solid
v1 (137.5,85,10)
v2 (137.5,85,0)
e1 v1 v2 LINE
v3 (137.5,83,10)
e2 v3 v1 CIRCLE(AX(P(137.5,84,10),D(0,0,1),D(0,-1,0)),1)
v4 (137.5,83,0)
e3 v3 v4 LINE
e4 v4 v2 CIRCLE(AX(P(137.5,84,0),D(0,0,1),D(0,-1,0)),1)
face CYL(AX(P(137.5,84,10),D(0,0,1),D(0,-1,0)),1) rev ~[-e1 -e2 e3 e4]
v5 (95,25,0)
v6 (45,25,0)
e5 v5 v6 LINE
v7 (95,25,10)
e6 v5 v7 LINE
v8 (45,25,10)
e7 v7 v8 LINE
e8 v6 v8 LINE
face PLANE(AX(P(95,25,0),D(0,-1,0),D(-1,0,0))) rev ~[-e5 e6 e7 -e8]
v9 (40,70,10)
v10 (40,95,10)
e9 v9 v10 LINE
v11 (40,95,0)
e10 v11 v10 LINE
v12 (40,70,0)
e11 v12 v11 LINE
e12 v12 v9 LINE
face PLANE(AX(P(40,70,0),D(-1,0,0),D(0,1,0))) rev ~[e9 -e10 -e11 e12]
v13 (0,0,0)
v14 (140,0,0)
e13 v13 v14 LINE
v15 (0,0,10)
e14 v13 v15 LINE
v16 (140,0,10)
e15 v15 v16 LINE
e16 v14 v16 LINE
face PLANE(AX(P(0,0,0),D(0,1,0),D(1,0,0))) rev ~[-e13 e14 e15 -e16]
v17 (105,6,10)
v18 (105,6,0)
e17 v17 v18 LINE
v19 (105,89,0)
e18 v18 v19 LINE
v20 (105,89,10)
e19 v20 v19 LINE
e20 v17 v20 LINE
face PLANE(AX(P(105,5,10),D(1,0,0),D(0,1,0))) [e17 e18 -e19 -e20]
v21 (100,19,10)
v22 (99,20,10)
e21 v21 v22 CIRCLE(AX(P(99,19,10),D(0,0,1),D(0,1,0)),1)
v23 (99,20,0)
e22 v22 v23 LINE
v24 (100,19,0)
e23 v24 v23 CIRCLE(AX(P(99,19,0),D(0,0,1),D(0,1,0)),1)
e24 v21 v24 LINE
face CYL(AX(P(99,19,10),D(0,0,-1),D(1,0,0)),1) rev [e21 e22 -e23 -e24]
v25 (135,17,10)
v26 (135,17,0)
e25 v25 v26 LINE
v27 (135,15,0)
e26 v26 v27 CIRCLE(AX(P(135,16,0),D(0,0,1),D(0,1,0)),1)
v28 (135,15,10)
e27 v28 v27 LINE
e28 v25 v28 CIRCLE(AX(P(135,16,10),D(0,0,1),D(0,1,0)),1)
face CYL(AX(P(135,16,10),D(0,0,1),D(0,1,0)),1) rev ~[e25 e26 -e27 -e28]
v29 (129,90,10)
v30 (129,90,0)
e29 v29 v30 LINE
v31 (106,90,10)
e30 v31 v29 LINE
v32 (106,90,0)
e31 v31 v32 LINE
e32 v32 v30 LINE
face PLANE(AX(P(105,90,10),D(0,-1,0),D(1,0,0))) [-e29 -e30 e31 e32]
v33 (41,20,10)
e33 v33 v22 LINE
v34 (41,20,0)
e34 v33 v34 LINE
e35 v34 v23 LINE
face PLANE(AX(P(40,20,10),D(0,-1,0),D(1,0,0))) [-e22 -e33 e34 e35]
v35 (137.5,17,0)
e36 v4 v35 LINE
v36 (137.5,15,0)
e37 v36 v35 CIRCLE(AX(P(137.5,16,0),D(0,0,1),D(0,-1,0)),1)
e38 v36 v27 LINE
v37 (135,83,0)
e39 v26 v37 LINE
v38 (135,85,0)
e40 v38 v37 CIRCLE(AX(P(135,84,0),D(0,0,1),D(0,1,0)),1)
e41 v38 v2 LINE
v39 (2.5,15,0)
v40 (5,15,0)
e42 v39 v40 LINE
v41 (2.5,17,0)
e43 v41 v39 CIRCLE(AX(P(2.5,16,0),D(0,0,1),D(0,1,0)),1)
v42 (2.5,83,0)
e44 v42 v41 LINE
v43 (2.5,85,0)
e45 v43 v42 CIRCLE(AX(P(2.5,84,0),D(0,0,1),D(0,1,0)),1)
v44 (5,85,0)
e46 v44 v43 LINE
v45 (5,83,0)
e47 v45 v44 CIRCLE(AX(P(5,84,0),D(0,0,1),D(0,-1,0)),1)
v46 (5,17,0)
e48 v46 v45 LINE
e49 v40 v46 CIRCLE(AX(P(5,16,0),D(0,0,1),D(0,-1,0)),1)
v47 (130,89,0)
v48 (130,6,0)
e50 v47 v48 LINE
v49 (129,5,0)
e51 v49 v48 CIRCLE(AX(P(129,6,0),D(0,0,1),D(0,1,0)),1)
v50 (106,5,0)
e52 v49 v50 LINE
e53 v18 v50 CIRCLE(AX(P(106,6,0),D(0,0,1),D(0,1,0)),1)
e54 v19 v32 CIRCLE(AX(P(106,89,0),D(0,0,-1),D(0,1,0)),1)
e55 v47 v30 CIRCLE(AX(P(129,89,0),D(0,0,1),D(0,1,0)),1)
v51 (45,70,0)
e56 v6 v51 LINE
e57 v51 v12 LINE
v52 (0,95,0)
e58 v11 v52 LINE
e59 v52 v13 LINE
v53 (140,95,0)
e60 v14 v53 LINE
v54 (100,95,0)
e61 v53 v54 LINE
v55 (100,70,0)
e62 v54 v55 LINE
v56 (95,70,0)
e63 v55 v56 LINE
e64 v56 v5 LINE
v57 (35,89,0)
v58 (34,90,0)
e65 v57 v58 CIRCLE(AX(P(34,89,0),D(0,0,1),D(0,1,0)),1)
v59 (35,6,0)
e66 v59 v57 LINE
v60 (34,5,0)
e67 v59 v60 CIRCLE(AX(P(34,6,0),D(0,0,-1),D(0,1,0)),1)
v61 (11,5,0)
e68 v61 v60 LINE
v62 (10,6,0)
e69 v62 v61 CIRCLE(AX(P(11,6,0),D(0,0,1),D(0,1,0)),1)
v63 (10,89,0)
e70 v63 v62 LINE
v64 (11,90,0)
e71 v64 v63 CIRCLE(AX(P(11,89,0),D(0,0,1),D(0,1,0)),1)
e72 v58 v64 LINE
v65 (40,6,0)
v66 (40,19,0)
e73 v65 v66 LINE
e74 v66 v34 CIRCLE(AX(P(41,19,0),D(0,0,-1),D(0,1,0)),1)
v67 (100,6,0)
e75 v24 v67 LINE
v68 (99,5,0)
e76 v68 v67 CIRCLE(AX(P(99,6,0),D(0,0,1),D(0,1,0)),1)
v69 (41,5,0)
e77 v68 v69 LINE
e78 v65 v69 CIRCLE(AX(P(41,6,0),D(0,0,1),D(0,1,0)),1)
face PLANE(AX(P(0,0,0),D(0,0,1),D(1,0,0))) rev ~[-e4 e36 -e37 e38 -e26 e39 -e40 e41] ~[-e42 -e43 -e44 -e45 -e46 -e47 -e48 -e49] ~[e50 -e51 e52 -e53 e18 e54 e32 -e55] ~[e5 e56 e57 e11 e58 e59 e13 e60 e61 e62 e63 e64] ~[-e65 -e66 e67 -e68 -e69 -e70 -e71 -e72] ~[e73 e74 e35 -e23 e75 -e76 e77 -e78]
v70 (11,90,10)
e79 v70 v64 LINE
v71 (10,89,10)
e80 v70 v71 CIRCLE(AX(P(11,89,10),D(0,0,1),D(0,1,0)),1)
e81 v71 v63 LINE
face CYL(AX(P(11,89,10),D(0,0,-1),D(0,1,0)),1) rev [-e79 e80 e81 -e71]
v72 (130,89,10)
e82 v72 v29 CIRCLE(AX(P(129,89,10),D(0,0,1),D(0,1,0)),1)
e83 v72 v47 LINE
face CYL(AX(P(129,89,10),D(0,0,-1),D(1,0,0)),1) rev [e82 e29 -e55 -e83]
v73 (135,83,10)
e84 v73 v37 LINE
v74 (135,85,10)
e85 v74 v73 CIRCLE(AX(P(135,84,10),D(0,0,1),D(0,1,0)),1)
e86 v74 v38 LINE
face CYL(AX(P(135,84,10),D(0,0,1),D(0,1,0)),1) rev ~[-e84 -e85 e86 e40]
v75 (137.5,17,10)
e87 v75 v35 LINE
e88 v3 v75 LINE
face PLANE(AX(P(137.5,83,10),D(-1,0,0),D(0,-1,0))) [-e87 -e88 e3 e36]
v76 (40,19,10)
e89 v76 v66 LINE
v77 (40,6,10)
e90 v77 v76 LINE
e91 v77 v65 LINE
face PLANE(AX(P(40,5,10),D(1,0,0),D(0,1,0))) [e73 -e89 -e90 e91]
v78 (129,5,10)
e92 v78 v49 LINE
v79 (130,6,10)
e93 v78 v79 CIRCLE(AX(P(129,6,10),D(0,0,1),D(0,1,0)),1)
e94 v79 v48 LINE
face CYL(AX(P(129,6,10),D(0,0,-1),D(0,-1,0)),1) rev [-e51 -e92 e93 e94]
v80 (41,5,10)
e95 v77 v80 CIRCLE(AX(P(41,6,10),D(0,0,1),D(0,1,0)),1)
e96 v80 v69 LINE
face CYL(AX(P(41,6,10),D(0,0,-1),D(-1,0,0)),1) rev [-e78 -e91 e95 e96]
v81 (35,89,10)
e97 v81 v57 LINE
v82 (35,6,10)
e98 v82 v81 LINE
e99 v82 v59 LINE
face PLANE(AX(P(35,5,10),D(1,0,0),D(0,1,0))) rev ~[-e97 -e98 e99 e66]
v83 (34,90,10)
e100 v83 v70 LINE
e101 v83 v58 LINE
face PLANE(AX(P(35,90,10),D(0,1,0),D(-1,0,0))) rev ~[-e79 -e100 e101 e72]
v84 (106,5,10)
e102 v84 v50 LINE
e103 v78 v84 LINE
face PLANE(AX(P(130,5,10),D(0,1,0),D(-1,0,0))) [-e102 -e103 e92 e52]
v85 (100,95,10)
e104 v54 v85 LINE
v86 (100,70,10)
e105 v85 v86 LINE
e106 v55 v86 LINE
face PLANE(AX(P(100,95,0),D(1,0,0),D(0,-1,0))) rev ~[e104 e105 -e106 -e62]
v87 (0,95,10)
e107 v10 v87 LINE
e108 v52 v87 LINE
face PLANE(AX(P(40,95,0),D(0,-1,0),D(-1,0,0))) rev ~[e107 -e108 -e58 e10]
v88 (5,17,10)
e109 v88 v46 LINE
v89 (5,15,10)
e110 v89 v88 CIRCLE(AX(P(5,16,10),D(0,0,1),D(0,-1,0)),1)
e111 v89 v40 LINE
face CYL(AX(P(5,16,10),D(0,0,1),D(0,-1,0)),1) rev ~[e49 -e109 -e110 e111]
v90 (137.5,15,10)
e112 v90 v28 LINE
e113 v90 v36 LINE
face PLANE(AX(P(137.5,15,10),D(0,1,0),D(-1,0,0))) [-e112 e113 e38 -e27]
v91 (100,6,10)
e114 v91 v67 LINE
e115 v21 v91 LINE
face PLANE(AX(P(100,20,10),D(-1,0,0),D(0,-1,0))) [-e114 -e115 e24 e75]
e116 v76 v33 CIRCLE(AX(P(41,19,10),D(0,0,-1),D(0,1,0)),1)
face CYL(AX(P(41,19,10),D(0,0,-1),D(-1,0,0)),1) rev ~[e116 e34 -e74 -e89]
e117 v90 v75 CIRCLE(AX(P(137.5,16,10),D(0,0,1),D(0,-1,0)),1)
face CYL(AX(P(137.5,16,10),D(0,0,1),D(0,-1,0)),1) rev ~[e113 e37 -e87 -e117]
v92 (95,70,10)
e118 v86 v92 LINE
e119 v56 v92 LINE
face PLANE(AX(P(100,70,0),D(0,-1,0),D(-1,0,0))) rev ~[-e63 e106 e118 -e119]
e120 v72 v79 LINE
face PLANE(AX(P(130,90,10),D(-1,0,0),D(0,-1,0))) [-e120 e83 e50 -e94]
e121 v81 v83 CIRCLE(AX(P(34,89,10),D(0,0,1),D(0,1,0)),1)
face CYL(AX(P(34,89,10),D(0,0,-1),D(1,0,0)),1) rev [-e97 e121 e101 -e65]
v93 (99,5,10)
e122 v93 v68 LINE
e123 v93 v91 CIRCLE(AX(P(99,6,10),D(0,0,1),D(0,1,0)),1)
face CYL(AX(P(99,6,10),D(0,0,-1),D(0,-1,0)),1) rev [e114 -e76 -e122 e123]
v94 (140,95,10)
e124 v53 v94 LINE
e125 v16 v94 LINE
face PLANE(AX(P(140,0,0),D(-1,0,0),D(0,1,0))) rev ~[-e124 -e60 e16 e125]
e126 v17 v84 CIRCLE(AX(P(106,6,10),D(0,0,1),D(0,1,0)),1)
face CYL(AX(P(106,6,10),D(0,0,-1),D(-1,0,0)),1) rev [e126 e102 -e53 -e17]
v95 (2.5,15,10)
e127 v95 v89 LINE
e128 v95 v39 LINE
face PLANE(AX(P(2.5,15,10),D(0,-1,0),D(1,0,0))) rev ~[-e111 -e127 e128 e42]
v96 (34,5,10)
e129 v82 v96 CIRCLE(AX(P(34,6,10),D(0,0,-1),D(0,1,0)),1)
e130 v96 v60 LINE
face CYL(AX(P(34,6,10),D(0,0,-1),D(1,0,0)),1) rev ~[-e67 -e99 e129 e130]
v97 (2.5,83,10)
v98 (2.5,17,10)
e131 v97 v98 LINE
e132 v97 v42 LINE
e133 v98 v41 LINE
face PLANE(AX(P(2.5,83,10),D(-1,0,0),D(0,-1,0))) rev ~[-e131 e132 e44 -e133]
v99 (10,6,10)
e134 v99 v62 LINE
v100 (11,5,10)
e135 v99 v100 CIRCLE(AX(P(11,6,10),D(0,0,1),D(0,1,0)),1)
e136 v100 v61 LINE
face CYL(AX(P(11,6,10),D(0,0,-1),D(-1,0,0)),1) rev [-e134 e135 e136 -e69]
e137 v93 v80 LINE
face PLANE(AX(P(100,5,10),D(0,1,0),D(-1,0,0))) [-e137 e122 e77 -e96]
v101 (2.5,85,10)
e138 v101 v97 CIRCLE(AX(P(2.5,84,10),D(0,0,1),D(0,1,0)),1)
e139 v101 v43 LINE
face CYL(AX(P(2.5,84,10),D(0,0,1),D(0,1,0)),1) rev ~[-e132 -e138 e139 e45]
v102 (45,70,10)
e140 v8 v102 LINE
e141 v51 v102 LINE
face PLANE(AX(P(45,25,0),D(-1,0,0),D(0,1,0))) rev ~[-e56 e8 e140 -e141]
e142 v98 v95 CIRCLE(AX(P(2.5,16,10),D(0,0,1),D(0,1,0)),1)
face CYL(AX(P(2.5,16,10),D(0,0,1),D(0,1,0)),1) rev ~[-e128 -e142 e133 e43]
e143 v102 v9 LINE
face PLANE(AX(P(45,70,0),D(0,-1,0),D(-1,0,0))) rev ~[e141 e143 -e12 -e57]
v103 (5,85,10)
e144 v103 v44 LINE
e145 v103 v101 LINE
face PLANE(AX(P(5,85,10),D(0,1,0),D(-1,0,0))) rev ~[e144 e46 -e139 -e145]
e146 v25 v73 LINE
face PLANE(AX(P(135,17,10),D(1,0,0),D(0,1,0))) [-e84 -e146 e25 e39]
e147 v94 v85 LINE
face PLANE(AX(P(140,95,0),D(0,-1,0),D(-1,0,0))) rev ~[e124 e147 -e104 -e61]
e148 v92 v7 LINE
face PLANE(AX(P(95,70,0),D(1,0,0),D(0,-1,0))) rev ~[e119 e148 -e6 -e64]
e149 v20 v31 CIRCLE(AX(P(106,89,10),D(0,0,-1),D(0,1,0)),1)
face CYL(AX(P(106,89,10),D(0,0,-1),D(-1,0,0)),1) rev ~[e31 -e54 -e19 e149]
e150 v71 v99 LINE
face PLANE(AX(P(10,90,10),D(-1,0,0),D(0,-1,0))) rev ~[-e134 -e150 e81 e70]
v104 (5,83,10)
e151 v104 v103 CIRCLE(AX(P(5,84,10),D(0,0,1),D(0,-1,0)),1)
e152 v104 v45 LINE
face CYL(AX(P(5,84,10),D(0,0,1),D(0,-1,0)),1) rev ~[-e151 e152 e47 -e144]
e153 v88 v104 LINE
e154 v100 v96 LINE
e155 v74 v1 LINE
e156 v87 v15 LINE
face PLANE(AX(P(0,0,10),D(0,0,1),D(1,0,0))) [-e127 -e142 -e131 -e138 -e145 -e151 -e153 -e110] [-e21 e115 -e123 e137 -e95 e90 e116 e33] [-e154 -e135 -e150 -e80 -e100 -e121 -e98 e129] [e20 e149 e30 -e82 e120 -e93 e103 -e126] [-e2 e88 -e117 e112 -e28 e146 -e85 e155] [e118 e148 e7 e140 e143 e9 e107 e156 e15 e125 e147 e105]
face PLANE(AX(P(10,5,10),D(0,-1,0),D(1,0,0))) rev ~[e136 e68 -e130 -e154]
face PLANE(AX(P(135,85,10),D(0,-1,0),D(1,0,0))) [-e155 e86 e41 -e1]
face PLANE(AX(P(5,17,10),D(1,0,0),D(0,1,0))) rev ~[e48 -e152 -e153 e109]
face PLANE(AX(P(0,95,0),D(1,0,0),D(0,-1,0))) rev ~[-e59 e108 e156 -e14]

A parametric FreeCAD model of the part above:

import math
import FreeCAD as App
import Part
import Sketcher
Q = App.Units.Quantity


def edges_at(feature, points):
    """Names of the edges that pass closest to the given points."""
    edges = feature.Shape.Edges
    near = lambda p: min(range(len(edges)), key=lambda i: edges[i].distToShape(Part.Vertex(*p))[0])
    return sorted({f"Edge{near(p) + 1}" for p in points})

doc = App.newDocument("Part")
params = doc.addObject("Spreadsheet::Sheet", "Params")
for row, (alias, value) in enumerate([
    ("sketch1_width", "140 mm"),
    ("sketch1_width2", "50 mm"),
    ("sketch1_height", "95 mm"),
    ("sketch1_height2", "25 mm"),
    ("pad1_length", "10 mm"),
    ("sketch2_radius", "1 mm"),
    ("sketch2_width", "2.5 mm"),
    ("sketch2_height", "66 mm"),
    ("sketch3_width", "60 mm"),
    ("sketch3_width2", "25 mm"),
    ("sketch3_height", "15 mm"),
    ("sketch3_height2", "85 mm"),
    ("fillet_radius", "1 mm"),
], start=1):
    params.set(f"A{row}", alias)
    params.set(f"B{row}", "=" + value)
    params.setAlias(f"B{row}", alias)

body = doc.addObject("PartDesign::Body", "Body")

sketch1 = body.newObject("Sketcher::SketchObject", "Sketch")
sketch1.AttachmentSupport = (doc.getObject("XY_Plane"), [""])
sketch1.MapMode = "FlatFace"
sketch1.addGeometry([
    Part.LineSegment(App.Vector(0, 95, 0), App.Vector(0, 0, 0)),
    Part.LineSegment(App.Vector(0, 0, 0), App.Vector(140, 0, 0)),
    Part.LineSegment(App.Vector(140, 0, 0), App.Vector(140, 95, 0)),
    Part.LineSegment(App.Vector(140, 95, 0), App.Vector(100, 95, 0)),
    Part.LineSegment(App.Vector(100, 95, 0), App.Vector(100, 70, 0)),
    Part.LineSegment(App.Vector(100, 70, 0), App.Vector(95, 70, 0)),
    Part.LineSegment(App.Vector(95, 70, 0), App.Vector(95, 25, 0)),
    Part.LineSegment(App.Vector(95, 25, 0), App.Vector(45, 25, 0)),
    Part.LineSegment(App.Vector(45, 25, 0), App.Vector(45, 70, 0)),
    Part.LineSegment(App.Vector(45, 70, 0), App.Vector(40, 70, 0)),
    Part.LineSegment(App.Vector(40, 70, 0), App.Vector(40, 95, 0)),
    Part.LineSegment(App.Vector(40, 95, 0), App.Vector(0, 95, 0)),
], False)
sketch1.addConstraint([
    Sketcher.Constraint("Coincident", 0, 2, 1, 1),
    Sketcher.Constraint("Coincident", 1, 2, 2, 1),
    Sketcher.Constraint("Coincident", 2, 2, 3, 1),
    Sketcher.Constraint("Coincident", 3, 2, 4, 1),
    Sketcher.Constraint("Coincident", 4, 2, 5, 1),
    Sketcher.Constraint("Coincident", 5, 2, 6, 1),
    Sketcher.Constraint("Coincident", 6, 2, 7, 1),
    Sketcher.Constraint("Coincident", 7, 2, 8, 1),
    Sketcher.Constraint("Coincident", 8, 2, 9, 1),
    Sketcher.Constraint("Coincident", 9, 2, 10, 1),
    Sketcher.Constraint("Coincident", 10, 2, 11, 1),
    Sketcher.Constraint("Coincident", 11, 2, 0, 1),
    Sketcher.Constraint("Vertical", 0),
    Sketcher.Constraint("Horizontal", 1),
    Sketcher.Constraint("Vertical", 2),
    Sketcher.Constraint("Horizontal", 3),
    Sketcher.Constraint("Vertical", 4),
    Sketcher.Constraint("Horizontal", 5),
    Sketcher.Constraint("Vertical", 6),
    Sketcher.Constraint("Horizontal", 7),
    Sketcher.Constraint("Vertical", 8),
    Sketcher.Constraint("Horizontal", 9),
    Sketcher.Constraint("Vertical", 10),
    Sketcher.Constraint("Horizontal", 11),
    Sketcher.Constraint("Coincident", 0, 2, -1, 1),
    Sketcher.Constraint("Horizontal", 5, 2, 8, 2),
    Sketcher.Constraint("Horizontal", 3, 2, 10, 2),
    Sketcher.Constraint("Equal", 5, 9),
    Sketcher.Constraint("Equal", 3, 11),
    Sketcher.Constraint("DistanceX", 1, 1, 1, 2, Q("140 mm")),
    Sketcher.Constraint("DistanceX", 7, 2, 7, 1, Q("50 mm")),
    Sketcher.Constraint("DistanceY", 0, 2, 0, 1, Q("95 mm")),
    Sketcher.Constraint("DistanceY", 4, 2, 4, 1, Q("25 mm")),
    Sketcher.Constraint("DistanceY", -1, 1, 6, 2, Q("25 mm")),
    Sketcher.Constraint("DistanceX", 9, 2, 4, 2, Q("60 mm")),
])
sketch1.setExpression("Constraints[29]", "Params.sketch1_width")
sketch1.setExpression("Constraints[30]", "Params.sketch1_width2")
sketch1.setExpression("Constraints[31]", "Params.sketch1_height")
sketch1.setExpression("Constraints[32]", "Params.sketch1_height2")
pad1 = body.newObject("PartDesign::Pad", "Pad")
pad1.Profile = sketch1
pad1.setExpression("Length", "Params.pad1_length")

sketch2 = body.newObject("Sketcher::SketchObject", "Sketch001")
sketch2.AttachmentSupport = (doc.getObject("XY_Plane"), [""])
sketch2.MapMode = "FlatFace"
sketch2.AttachmentOffset = App.Placement(App.Vector(0, 0, 10), App.Rotation())
sketch2.addGeometry([
    Part.LineSegment(App.Vector(137.5, 85, 0), App.Vector(135, 85, 0)),
    Part.ArcOfCircle(Part.Circle(App.Vector(135, 84, 0), App.Vector(0, 0, 1), 1), math.radians(90), math.radians(270)),
    Part.LineSegment(App.Vector(135, 83, 0), App.Vector(135, 17, 0)),
    Part.ArcOfCircle(Part.Circle(App.Vector(135, 16, 0), App.Vector(0, 0, 1), 1), math.radians(90), math.radians(270)),
    Part.LineSegment(App.Vector(135, 15, 0), App.Vector(137.5, 15, 0)),
    Part.ArcOfCircle(Part.Circle(App.Vector(137.5, 16, 0), App.Vector(0, 0, 1), 1), math.radians(-90), math.radians(90)),
    Part.LineSegment(App.Vector(137.5, 17, 0), App.Vector(137.5, 83, 0)),
    Part.ArcOfCircle(Part.Circle(App.Vector(137.5, 84, 0), App.Vector(0, 0, 1), 1), math.radians(-90), math.radians(90)),
    Part.ArcOfCircle(Part.Circle(App.Vector(5, 84, 0), App.Vector(0, 0, 1), 1), math.radians(-90), math.radians(90)),
    Part.LineSegment(App.Vector(5, 85, 0), App.Vector(2.5, 85, 0)),
    Part.ArcOfCircle(Part.Circle(App.Vector(2.5, 84, 0), App.Vector(0, 0, 1), 1), math.radians(90), math.radians(270)),
    Part.LineSegment(App.Vector(2.5, 83, 0), App.Vector(2.5, 17, 0)),
    Part.ArcOfCircle(Part.Circle(App.Vector(2.5, 16, 0), App.Vector(0, 0, 1), 1), math.radians(90), math.radians(270)),
    Part.LineSegment(App.Vector(2.5, 15, 0), App.Vector(5, 15, 0)),
    Part.ArcOfCircle(Part.Circle(App.Vector(5, 16, 0), App.Vector(0, 0, 1), 1), math.radians(-90), math.radians(90)),
    Part.LineSegment(App.Vector(5, 17, 0), App.Vector(5, 83, 0)),
], False)
sketch2.addConstraint([
    Sketcher.Constraint("Tangent", 0, 2, 1, 1),
    Sketcher.Constraint("Coincident", 1, 2, 2, 1),
    Sketcher.Constraint("Coincident", 2, 2, 3, 1),
    Sketcher.Constraint("Tangent", 3, 2, 4, 1),
    Sketcher.Constraint("Tangent", 4, 2, 5, 1),
    Sketcher.Constraint("Coincident", 5, 2, 6, 1),
    Sketcher.Constraint("Coincident", 6, 2, 7, 1),
    Sketcher.Constraint("Tangent", 7, 2, 0, 1),
    Sketcher.Constraint("Tangent", 8, 2, 9, 1),
    Sketcher.Constraint("Tangent", 9, 2, 10, 1),
    Sketcher.Constraint("Coincident", 10, 2, 11, 1),
    Sketcher.Constraint("Coincident", 11, 2, 12, 1),
    Sketcher.Constraint("Tangent", 12, 2, 13, 1),
    Sketcher.Constraint("Tangent", 13, 2, 14, 1),
    Sketcher.Constraint("Coincident", 14, 2, 15, 1),
    Sketcher.Constraint("Coincident", 15, 2, 8, 1),
    Sketcher.Constraint("Horizontal", 0),
    Sketcher.Constraint("Vertical", 2),
    Sketcher.Constraint("Horizontal", 4),
    Sketcher.Constraint("Vertical", 6),
    Sketcher.Constraint("Horizontal", 9),
    Sketcher.Constraint("Vertical", 11),
    Sketcher.Constraint("Horizontal", 13),
    Sketcher.Constraint("Vertical", 15),
    Sketcher.Constraint("Equal", 1, 3),
    Sketcher.Constraint("Equal", 3, 5),
    Sketcher.Constraint("Equal", 5, 7),
    Sketcher.Constraint("Equal", 7, 8),
    Sketcher.Constraint("Equal", 8, 10),
    Sketcher.Constraint("Equal", 10, 12),
    Sketcher.Constraint("Equal", 12, 14),
    Sketcher.Constraint("Horizontal", 7, 3, 8, 3),
    Sketcher.Constraint("Horizontal", 5, 3, 12, 3),
    Sketcher.Constraint("Vertical", 1, 3, 3, 3),
    Sketcher.Constraint("Vertical", 5, 3, 7, 3),
    Sketcher.Constraint("Vertical", 10, 3, 12, 3),
    Sketcher.Constraint("Vertical", 8, 3, 14, 3),
    Sketcher.Constraint("Vertical", 0, 2, 1, 2),
    Sketcher.Constraint("Vertical", 4, 2, 5, 2),
    Sketcher.Constraint("Vertical", 9, 2, 10, 2),
    Sketcher.Constraint("Vertical", 13, 2, 14, 2),
    Sketcher.Constraint("Equal", 4, 9),
    Sketcher.Constraint("Radius", 1, Q("1 mm")),
    Sketcher.Constraint("DistanceX", 0, 2, 0, 1, Q("2.5 mm")),
    Sketcher.Constraint("DistanceY", -1, 1, 3, 2, Q("15 mm")),
    Sketcher.Constraint("DistanceX", -1, 1, 10, 3, Q("2.5 mm")),
    Sketcher.Constraint("DistanceY", 2, 2, 2, 1, Q("66 mm")),
    Sketcher.Constraint("DistanceX", -1, 1, 1, 3, Q("135 mm")),
])
sketch2.setExpression("Constraints[42]", "Params.sketch2_radius")
sketch2.setExpression("Constraints[43]", "Params.sketch2_width")
sketch2.setExpression("Constraints[46]", "Params.sketch2_height")
pocket1 = body.newObject("PartDesign::Pocket", "Pocket")
pocket1.Profile = sketch2
pocket1.Type = "ThroughAll"

sketch3 = body.newObject("Sketcher::SketchObject", "Sketch002")
sketch3.AttachmentSupport = (doc.getObject("XY_Plane"), [""])
sketch3.MapMode = "FlatFace"
sketch3.AttachmentOffset = App.Placement(App.Vector(0, 0, 10), App.Rotation())
sketch3.addGeometry([
    Part.LineSegment(App.Vector(100, 20, 0), App.Vector(40, 20, 0)),
    Part.LineSegment(App.Vector(40, 20, 0), App.Vector(40, 5, 0)),
    Part.LineSegment(App.Vector(40, 5, 0), App.Vector(100, 5, 0)),
    Part.LineSegment(App.Vector(100, 5, 0), App.Vector(100, 20, 0)),
    Part.LineSegment(App.Vector(130, 90, 0), App.Vector(105, 90, 0)),
    Part.LineSegment(App.Vector(105, 90, 0), App.Vector(105, 5, 0)),
    Part.LineSegment(App.Vector(105, 5, 0), App.Vector(130, 5, 0)),
    Part.LineSegment(App.Vector(130, 5, 0), App.Vector(130, 90, 0)),
    Part.LineSegment(App.Vector(35, 5, 0), App.Vector(35, 90, 0)),
    Part.LineSegment(App.Vector(35, 90, 0), App.Vector(10, 90, 0)),
    Part.LineSegment(App.Vector(10, 90, 0), App.Vector(10, 5, 0)),
    Part.LineSegment(App.Vector(10, 5, 0), App.Vector(35, 5, 0)),
], False)
sketch3.addConstraint([
    Sketcher.Constraint("Coincident", 0, 2, 1, 1),
    Sketcher.Constraint("Coincident", 1, 2, 2, 1),
    Sketcher.Constraint("Coincident", 2, 2, 3, 1),
    Sketcher.Constraint("Coincident", 3, 2, 0, 1),
    Sketcher.Constraint("Coincident", 4, 2, 5, 1),
    Sketcher.Constraint("Coincident", 5, 2, 6, 1),
    Sketcher.Constraint("Coincident", 6, 2, 7, 1),
    Sketcher.Constraint("Coincident", 7, 2, 4, 1),
    Sketcher.Constraint("Coincident", 8, 2, 9, 1),
    Sketcher.Constraint("Coincident", 9, 2, 10, 1),
    Sketcher.Constraint("Coincident", 10, 2, 11, 1),
    Sketcher.Constraint("Coincident", 11, 2, 8, 1),
    Sketcher.Constraint("Horizontal", 0),
    Sketcher.Constraint("Vertical", 1),
    Sketcher.Constraint("Horizontal", 2),
    Sketcher.Constraint("Vertical", 3),
    Sketcher.Constraint("Horizontal", 4),
    Sketcher.Constraint("Vertical", 5),
    Sketcher.Constraint("Horizontal", 6),
    Sketcher.Constraint("Vertical", 7),
    Sketcher.Constraint("Vertical", 8),
    Sketcher.Constraint("Horizontal", 9),
    Sketcher.Constraint("Vertical", 10),
    Sketcher.Constraint("Horizontal", 11),
    Sketcher.Constraint("Horizontal", 2, 2, 5, 2),
    Sketcher.Constraint("Horizontal", 7, 2, 8, 2),
    Sketcher.Constraint("Horizontal", 6, 2, 10, 2),
    Sketcher.Constraint("Equal", 6, 9),
    Sketcher.Constraint("DistanceY", -1, 1, 1, 2, Q("5 mm")),
    Sketcher.Constraint("DistanceX", -1, 1, 9, 2, Q("10 mm")),
    Sketcher.Constraint("DistanceX", 3, 2, 4, 2, Q("5 mm")),
    Sketcher.Constraint("DistanceX", 8, 2, 0, 2, Q("5 mm")),
    Sketcher.Constraint("DistanceX", 0, 2, 0, 1, Q("60 mm")),
    Sketcher.Constraint("DistanceX", 4, 2, 4, 1, Q("25 mm")),
    Sketcher.Constraint("DistanceY", 1, 2, 1, 1, Q("15 mm")),
    Sketcher.Constraint("DistanceY", 5, 2, 5, 1, Q("85 mm")),
])
sketch3.setExpression("Constraints[32]", "Params.sketch3_width")
sketch3.setExpression("Constraints[33]", "Params.sketch3_width2")
sketch3.setExpression("Constraints[34]", "Params.sketch3_height")
sketch3.setExpression("Constraints[35]", "Params.sketch3_height2")
pocket2 = body.newObject("PartDesign::Pocket", "Pocket001")
pocket2.Profile = sketch3
pocket2.Type = "ThroughAll"
doc.recompute()

fillet = body.newObject("PartDesign::Fillet", "Fillet")
fillet.Base = (pocket2, edges_at(pocket2, [
    (35, 90, 5),
    (10, 90, 5),
    (10, 5, 5),
    (35, 5, 5),
    (40, 5, 5),
    (40, 20, 5),
    (100, 5, 5),
    (100, 20, 5),
    (130, 90, 5),
    (105, 90, 5),
    (105, 5, 5),
    (130, 5, 5),
]))
fillet.setExpression("Radius", "Params.fillet_radius")

doc.recompute()
